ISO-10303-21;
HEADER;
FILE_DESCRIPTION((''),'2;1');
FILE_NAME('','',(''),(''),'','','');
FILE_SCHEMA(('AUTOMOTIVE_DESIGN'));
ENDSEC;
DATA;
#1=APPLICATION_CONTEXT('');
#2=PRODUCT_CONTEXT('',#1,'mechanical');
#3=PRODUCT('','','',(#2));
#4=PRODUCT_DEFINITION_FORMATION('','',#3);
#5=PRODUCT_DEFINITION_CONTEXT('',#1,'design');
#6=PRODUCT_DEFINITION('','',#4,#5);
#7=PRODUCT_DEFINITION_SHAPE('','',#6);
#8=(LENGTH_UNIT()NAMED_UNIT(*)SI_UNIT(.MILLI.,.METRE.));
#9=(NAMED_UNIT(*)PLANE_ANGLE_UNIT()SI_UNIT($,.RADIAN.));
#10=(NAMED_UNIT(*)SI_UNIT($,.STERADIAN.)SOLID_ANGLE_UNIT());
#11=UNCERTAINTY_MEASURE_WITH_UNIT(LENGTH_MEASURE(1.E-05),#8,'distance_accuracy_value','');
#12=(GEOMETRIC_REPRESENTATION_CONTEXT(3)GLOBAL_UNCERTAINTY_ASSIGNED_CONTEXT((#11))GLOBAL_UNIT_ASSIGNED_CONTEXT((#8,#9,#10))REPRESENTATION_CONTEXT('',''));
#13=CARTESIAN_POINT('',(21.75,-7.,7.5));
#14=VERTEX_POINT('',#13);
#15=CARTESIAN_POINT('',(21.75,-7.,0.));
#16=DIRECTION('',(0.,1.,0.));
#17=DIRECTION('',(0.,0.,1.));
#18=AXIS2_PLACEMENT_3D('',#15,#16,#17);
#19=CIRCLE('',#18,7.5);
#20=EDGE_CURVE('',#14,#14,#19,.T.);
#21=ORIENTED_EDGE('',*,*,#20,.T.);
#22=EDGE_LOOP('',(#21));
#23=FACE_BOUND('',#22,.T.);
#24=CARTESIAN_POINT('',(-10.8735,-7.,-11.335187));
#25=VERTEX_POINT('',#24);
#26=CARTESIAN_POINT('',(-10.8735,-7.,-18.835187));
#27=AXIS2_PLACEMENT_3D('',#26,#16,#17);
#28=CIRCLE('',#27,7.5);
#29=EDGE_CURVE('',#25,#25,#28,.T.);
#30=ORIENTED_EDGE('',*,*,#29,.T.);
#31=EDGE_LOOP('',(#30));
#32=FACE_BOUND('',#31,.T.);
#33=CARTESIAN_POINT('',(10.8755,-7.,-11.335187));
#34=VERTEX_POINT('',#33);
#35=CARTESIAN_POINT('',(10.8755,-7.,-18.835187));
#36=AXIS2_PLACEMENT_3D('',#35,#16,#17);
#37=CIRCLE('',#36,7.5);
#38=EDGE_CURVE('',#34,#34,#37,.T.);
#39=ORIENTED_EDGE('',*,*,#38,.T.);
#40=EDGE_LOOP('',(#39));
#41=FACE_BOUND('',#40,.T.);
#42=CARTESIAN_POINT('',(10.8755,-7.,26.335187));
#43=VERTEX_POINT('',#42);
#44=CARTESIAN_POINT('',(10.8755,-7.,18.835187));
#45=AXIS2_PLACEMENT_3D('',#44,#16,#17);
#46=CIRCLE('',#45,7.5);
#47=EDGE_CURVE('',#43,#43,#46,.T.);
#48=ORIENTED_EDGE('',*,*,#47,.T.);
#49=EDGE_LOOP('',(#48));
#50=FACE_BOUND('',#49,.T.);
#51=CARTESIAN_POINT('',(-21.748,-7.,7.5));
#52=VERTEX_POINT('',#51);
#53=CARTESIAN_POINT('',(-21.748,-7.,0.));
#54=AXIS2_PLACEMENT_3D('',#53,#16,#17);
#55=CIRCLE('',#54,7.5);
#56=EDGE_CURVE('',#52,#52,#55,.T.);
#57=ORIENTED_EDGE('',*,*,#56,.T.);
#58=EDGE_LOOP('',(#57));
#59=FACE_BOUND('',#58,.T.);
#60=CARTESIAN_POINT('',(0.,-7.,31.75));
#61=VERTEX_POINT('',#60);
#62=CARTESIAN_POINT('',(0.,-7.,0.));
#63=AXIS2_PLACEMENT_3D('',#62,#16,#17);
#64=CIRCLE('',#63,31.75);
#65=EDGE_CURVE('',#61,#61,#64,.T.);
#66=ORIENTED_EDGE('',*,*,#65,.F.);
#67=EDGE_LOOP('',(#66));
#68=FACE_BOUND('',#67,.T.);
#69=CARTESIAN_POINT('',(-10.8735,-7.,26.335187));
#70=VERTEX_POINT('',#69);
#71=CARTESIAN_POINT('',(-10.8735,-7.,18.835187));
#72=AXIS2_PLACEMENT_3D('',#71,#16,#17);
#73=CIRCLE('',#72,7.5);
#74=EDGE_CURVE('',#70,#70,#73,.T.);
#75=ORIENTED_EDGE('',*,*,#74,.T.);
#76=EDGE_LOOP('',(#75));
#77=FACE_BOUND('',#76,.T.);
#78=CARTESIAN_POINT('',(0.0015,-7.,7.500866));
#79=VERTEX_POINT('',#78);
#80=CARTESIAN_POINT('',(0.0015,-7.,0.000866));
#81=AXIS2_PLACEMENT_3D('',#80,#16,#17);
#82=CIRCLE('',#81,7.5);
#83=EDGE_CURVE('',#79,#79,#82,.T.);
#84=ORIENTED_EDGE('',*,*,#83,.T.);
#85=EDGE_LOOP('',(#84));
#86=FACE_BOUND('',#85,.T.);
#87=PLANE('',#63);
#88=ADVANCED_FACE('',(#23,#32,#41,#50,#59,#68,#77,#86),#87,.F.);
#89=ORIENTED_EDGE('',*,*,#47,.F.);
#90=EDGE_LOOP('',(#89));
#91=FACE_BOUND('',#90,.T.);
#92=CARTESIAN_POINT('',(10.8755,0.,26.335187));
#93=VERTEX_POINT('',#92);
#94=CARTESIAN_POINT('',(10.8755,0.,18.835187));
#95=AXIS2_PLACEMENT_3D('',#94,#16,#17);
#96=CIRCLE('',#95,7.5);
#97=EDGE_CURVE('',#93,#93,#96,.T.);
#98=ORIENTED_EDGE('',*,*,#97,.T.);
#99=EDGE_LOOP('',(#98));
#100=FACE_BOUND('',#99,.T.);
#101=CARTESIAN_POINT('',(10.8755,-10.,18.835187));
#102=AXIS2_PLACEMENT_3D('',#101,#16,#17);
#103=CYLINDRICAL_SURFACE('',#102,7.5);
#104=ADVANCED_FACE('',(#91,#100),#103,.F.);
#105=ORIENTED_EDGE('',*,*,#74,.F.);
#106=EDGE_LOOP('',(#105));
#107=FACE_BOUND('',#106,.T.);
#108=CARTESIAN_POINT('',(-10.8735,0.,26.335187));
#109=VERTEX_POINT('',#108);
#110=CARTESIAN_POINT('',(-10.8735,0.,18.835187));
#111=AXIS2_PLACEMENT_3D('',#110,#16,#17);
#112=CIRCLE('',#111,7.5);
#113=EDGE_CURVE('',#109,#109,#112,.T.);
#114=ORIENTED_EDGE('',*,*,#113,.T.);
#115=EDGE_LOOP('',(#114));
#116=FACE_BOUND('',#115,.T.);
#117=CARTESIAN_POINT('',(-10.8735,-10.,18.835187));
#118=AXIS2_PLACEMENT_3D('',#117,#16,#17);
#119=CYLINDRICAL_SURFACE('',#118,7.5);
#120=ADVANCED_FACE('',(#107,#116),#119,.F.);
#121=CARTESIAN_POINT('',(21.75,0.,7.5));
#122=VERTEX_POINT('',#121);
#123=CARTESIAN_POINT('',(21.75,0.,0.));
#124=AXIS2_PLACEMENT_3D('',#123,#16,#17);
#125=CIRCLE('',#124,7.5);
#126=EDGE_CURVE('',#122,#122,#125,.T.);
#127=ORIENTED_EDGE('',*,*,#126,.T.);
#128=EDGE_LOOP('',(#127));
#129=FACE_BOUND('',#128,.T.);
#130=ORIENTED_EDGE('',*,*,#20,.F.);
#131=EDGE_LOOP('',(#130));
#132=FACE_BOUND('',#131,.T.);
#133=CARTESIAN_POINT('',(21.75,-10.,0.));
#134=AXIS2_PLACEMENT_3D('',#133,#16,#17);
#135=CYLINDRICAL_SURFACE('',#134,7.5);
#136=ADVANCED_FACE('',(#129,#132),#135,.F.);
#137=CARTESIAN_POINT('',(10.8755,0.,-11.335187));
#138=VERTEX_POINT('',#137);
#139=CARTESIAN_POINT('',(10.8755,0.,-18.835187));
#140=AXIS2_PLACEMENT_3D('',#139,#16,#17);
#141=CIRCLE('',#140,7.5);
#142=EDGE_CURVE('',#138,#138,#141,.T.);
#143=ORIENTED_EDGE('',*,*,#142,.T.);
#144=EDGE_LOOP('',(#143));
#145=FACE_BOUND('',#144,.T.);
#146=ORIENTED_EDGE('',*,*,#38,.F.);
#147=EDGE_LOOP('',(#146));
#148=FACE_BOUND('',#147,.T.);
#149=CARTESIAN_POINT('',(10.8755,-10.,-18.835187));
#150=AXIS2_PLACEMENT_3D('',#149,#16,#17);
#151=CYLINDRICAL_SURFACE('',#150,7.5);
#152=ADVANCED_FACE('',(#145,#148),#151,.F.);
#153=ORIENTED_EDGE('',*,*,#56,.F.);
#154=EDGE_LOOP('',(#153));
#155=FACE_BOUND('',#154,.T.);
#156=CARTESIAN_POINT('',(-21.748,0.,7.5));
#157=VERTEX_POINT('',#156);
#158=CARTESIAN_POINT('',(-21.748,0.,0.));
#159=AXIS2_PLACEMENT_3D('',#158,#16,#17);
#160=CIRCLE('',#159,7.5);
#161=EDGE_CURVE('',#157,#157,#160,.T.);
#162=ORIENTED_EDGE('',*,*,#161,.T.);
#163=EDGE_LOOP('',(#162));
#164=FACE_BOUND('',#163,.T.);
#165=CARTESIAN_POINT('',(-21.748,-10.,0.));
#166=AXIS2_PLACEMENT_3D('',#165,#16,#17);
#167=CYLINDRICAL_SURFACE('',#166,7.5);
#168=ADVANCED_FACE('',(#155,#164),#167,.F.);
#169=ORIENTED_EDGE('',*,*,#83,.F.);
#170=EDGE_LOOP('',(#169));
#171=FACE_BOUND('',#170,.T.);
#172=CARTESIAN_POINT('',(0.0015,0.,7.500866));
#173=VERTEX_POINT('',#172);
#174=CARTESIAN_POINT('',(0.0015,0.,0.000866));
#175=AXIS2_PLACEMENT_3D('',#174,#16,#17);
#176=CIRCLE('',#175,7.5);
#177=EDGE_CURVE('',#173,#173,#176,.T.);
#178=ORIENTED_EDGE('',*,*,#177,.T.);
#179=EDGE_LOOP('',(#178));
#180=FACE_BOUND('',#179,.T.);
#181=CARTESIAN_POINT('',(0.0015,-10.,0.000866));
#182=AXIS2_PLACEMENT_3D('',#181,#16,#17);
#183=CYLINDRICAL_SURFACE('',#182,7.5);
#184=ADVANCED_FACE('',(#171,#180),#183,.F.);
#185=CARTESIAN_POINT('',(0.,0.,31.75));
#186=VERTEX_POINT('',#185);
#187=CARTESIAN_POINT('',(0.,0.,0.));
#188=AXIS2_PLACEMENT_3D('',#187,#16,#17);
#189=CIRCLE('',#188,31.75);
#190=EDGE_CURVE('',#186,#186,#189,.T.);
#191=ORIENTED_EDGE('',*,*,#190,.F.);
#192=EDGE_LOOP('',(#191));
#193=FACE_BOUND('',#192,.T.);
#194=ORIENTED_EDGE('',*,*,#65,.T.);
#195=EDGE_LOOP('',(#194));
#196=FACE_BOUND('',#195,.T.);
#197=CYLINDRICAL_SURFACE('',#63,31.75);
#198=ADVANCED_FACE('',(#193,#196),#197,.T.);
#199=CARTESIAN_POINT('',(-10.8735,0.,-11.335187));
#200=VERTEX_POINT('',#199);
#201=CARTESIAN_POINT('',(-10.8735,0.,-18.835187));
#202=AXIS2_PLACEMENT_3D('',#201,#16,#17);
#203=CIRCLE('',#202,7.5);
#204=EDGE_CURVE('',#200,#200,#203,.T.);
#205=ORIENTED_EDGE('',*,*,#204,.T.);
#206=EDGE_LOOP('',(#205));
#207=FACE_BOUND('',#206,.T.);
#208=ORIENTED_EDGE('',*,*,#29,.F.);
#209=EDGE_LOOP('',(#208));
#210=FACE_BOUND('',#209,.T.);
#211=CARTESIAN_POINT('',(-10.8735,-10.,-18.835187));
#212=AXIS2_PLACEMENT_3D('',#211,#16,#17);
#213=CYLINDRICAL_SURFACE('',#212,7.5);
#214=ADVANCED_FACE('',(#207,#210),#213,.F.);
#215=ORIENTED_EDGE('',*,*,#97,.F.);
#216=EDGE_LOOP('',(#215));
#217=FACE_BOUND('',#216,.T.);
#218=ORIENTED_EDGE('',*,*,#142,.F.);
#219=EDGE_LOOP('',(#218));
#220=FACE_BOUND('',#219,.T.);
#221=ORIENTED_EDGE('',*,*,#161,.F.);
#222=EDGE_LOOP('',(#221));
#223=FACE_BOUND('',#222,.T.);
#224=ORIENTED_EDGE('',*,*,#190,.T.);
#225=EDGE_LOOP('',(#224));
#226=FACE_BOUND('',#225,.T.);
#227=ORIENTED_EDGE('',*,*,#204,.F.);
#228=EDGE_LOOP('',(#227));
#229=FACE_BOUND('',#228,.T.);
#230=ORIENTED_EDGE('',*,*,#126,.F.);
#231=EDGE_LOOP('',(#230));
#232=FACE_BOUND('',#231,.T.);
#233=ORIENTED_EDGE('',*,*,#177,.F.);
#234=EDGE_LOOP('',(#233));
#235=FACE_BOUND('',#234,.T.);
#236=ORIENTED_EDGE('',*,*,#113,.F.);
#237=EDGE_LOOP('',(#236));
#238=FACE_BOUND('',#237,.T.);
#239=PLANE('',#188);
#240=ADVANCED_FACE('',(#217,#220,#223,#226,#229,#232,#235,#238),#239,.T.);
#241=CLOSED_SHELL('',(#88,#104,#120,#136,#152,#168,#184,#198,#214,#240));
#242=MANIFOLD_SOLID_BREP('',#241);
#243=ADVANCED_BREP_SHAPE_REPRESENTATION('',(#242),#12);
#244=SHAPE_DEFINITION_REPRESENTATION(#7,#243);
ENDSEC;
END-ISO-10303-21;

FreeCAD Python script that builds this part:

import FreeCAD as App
import Part
import Sketcher

V = App.Vector

doc = App.newDocument("Part")
body = doc.addObject("PartDesign::Body", "Body")

sketch1 = body.newObject("Sketcher::SketchObject", "Sketch")
sketch1.AttachmentSupport = (doc.getObject("XZ_Plane"), [""])
sketch1.MapMode = "FlatFace"
sketch1.addGeometry(Part.Circle(V(0, 0, 0), V(0, 0, 1), 32), False)
sketch1.addConstraint([
    Sketcher.Constraint("Coincident", 0, 3, -1, 1),
    Sketcher.Constraint("Diameter", 0, 63.5),
])
pad1 = body.newObject("PartDesign::Pad", "Pad")
pad1.Profile = sketch1
pad1.Length = 7

sketch2 = body.newObject("Sketcher::SketchObject", "Sketch001")
sketch2.AttachmentSupport = (doc.getObject("XZ_Plane"), [""])
sketch2.MapMode = "FlatFace"
sketch2.addGeometry([
    Part.Circle(V(22, 0, 0), V(0, 0, 1), 8),
    Part.Circle(V(11, 19, 0), V(0, 0, 1), 8),
    Part.Circle(V(-11, 19, 0), V(0, 0, 1), 8),
    Part.Circle(V(-22, 0, 0), V(0, 0, 1), 8),
    Part.Circle(V(0, 0, 0), V(0, 0, 1), 8),
    Part.Circle(V(-11, -19, 0), V(0, 0, 1), 8),
    Part.Circle(V(11, -19, 0), V(0, 0, 1), 8),
], False)
sketch2.addConstraint([
    Sketcher.Constraint("Equal", 0, 1),
    Sketcher.Constraint("Equal", 1, 2),
    Sketcher.Constraint("Equal", 2, 3),
    Sketcher.Constraint("Equal", 3, 4),
    Sketcher.Constraint("Equal", 4, 5),
    Sketcher.Constraint("Equal", 5, 6),
    Sketcher.Constraint("Symmetric", 2, 3, 5, 3, -1),
    Sketcher.Constraint("Symmetric", 1, 3, 6, 3, -1),
    Sketcher.Constraint("PointOnObject", 0, 3, -1),
    Sketcher.Constraint("PointOnObject", 3, 3, -1),
    Sketcher.Constraint("Horizontal", 1, 3, 2, 3),
    Sketcher.Constraint("Diameter", 0, 15.0),
    Sketcher.Constraint("DistanceX", -1, 1, 0, 3, 21.75),
    Sketcher.Constraint("DistanceX", 3, 3, -1, 1, 21.748),
    Sketcher.Constraint("DistanceX", 2, 3, 1, 3, 21.749),
    Sketcher.Constraint("DistanceX", 4, 3, 1, 3, 10.874),
    Sketcher.Constraint("DistanceX", -1, 1, 1, 3, 10.8755),
    Sketcher.Constraint("DistanceY", 4, 3, 1, 3, 18.83432),
    Sketcher.Constraint("DistanceY", -1, 1, 1, 3, 18.835187),
])
pocket1 = body.newObject("PartDesign::Pocket", "Pocket")
pocket1.Profile = sketch2
pocket1.Length = 10
pocket1.Reversed = True

doc.recompute()
